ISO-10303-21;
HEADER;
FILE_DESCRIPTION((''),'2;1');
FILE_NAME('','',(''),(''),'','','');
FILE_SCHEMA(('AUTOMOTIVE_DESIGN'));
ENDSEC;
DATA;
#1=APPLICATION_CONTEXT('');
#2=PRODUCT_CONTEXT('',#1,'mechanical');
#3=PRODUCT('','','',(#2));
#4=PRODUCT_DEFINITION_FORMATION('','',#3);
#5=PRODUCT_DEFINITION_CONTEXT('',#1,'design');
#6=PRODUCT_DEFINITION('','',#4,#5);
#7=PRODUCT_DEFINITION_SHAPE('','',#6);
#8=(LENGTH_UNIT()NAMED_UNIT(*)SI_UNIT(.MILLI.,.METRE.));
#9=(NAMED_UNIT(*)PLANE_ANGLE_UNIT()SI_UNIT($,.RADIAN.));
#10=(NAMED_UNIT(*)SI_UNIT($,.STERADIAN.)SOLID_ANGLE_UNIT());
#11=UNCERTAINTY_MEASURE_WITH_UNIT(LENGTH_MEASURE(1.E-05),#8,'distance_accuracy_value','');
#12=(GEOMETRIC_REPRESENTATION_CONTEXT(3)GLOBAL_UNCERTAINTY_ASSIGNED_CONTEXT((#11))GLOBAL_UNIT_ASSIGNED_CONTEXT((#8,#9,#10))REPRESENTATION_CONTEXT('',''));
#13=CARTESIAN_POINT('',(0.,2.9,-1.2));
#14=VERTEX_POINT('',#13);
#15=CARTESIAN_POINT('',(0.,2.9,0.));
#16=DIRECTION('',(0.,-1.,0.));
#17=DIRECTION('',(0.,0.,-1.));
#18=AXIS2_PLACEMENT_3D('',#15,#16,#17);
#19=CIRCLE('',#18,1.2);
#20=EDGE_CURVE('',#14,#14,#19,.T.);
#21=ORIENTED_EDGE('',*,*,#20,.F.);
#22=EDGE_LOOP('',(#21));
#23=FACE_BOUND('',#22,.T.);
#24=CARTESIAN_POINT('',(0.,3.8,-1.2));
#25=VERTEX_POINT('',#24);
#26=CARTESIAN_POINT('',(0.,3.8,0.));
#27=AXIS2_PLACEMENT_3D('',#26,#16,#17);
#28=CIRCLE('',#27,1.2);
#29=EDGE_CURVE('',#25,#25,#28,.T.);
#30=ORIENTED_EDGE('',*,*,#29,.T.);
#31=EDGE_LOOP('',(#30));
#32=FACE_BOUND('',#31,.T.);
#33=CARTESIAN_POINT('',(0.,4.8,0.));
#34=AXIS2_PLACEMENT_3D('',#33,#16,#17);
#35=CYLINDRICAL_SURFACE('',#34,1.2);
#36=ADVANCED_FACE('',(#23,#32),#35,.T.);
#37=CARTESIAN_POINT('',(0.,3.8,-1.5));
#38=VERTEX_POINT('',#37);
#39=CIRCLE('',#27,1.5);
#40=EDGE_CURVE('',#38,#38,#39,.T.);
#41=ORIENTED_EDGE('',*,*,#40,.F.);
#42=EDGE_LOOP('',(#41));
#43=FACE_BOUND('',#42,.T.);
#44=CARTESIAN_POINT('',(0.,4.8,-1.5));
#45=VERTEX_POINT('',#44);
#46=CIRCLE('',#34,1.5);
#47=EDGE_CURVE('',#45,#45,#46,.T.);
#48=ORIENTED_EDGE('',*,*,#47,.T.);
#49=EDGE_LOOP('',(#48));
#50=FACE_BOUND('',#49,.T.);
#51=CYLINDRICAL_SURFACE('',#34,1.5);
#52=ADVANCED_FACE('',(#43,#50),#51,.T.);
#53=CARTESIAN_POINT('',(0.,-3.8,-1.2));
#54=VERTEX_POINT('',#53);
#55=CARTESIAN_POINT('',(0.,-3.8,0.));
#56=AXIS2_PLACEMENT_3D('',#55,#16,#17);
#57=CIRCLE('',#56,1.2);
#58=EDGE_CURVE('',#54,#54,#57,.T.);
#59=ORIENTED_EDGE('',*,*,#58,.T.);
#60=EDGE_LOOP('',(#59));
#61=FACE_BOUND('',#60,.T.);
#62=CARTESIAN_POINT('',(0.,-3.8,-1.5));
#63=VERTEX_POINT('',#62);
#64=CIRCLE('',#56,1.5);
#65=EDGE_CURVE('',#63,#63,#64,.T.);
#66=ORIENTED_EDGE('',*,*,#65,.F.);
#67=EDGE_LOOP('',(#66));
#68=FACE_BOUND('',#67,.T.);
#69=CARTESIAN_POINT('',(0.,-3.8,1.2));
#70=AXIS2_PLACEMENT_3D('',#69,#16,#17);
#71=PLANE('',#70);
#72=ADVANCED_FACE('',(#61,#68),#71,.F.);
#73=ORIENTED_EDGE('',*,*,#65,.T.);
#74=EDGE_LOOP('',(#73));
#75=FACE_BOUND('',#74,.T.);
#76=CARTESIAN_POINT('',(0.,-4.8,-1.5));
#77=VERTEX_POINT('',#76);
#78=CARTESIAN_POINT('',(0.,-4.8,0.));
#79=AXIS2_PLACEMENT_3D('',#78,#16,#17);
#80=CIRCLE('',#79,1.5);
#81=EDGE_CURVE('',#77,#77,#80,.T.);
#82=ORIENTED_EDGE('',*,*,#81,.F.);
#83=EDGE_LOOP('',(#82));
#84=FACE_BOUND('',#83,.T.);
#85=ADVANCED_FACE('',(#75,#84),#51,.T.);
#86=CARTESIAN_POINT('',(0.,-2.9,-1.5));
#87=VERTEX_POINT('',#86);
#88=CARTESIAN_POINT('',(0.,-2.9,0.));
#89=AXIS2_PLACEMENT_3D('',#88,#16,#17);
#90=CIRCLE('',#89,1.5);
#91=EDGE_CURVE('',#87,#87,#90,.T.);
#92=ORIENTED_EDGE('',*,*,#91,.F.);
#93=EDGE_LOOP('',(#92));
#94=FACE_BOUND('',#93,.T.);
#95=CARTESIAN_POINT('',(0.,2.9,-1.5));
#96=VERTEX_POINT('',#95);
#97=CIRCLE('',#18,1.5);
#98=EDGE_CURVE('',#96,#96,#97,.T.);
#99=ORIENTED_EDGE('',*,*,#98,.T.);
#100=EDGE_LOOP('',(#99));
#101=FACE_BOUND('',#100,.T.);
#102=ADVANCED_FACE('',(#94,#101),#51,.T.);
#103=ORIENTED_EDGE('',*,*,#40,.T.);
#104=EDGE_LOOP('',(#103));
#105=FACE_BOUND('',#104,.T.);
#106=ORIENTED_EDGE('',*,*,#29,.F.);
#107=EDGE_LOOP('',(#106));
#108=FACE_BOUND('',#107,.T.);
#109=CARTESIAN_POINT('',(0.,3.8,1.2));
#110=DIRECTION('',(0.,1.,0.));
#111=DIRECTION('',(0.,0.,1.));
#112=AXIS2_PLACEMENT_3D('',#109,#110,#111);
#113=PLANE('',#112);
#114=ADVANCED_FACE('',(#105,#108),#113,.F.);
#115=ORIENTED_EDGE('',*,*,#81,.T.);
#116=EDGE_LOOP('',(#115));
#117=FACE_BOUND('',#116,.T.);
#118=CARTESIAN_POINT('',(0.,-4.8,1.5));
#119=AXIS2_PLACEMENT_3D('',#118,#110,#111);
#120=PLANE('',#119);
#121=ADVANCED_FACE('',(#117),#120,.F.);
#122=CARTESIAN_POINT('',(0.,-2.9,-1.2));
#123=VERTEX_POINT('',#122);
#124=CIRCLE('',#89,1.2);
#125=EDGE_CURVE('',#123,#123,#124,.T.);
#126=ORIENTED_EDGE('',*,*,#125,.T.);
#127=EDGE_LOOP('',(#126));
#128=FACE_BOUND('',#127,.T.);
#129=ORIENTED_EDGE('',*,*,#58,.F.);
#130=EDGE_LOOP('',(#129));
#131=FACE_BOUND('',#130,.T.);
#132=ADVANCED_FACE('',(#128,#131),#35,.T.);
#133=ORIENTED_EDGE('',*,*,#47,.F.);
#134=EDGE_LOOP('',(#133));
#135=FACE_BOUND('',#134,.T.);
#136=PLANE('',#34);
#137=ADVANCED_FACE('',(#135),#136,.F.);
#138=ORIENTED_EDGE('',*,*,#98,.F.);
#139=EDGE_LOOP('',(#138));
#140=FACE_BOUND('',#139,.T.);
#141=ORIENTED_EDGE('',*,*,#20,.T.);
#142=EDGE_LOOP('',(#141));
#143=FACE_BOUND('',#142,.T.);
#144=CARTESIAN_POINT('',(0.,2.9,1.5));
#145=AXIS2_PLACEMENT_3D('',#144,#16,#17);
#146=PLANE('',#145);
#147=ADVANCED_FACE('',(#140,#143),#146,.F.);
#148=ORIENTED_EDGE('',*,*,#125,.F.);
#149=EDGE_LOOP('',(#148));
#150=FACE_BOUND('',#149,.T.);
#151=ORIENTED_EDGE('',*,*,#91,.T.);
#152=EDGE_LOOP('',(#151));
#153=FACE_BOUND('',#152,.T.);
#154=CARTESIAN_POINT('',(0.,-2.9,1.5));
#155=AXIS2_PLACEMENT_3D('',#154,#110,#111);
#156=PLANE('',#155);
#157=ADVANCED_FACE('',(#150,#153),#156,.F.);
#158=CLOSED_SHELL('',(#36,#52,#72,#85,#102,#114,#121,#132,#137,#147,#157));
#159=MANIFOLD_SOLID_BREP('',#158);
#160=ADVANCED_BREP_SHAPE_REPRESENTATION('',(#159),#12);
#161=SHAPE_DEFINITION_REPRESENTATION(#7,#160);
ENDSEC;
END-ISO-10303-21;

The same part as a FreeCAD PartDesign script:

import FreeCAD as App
import Part
import Sketcher
Q = App.Units.Quantity


def add_polygon(sketch, points):
    """Adds a closed chain of lines whose ends are joined by coincident constraints."""
    first, n = sketch.GeometryCount, len(points)
    for a, b in zip(points, points[1:] + points[:1]):
        sketch.addGeometry(Part.LineSegment(App.Vector(*a, 0), App.Vector(*b, 0)), False)
    for i in range(n):
        sketch.addConstraint(Sketcher.Constraint("Coincident", first + i, 2, first + (i + 1) % n, 1))

doc = App.newDocument("Part")
body = doc.addObject("PartDesign::Body", "Body")

sketch1 = body.newObject("Sketcher::SketchObject", "Sketch")
sketch1.AttachmentSupport = (doc.getObject("YZ_Plane"), [""])
sketch1.MapMode = "FlatFace"
add_polygon(sketch1, [(4.8, 0), (4.8, 1.5), (3.8, 1.5), (3.8, 1.2), (2.9, 1.2), (2.9, 1.5), (-2.9, 1.5), (-2.9, 1.2), (-3.8, 1.2), (-3.8, 1.5), (-4.8, 1.5), (-4.8, 0)])
sketch1.addConstraint([
    Sketcher.Constraint("Vertical", 0),
    Sketcher.Constraint("Horizontal", 1),
    Sketcher.Constraint("Vertical", 2),
    Sketcher.Constraint("Horizontal", 3),
    Sketcher.Constraint("Vertical", 4),
    Sketcher.Constraint("Horizontal", 5),
    Sketcher.Constraint("Vertical", 6),
    Sketcher.Constraint("Horizontal", 7),
    Sketcher.Constraint("Vertical", 8),
    Sketcher.Constraint("Horizontal", 9),
    Sketcher.Constraint("Vertical", 10),
    Sketcher.Constraint("Horizontal", 11),
    Sketcher.Constraint("Symmetric", 10, 2, 11, 2, -1, 1),
    Sketcher.Constraint("Symmetric", 3, 2, 6, 2, -2),
    Sketcher.Constraint("Symmetric", 1, 2, 8, 2, -2),
    Sketcher.Constraint("Horizontal", 1, 2, 4, 2),
    Sketcher.Constraint("DistanceX", 1, 2, 1, 1, Q("1 mm")),
    Sketcher.Constraint("DistanceX", 3, 2, 3, 1, Q("0.9 mm")),
    Sketcher.Constraint("DistanceX", 5, 2, 5, 1, Q("5.8 mm")),
    Sketcher.Constraint("DistanceY", 0, 1, 0, 2, Q("1.5 mm")),
    Sketcher.Constraint("DistanceY", 2, 2, 2, 1, Q("0.3 mm")),
])
revolution = body.newObject("PartDesign::Revolution", "Revolution")
revolution.Profile = sketch1
revolution.ReferenceAxis = (sketch1, ["H_Axis"])
revolution.Angle = 360

doc.recompute()
